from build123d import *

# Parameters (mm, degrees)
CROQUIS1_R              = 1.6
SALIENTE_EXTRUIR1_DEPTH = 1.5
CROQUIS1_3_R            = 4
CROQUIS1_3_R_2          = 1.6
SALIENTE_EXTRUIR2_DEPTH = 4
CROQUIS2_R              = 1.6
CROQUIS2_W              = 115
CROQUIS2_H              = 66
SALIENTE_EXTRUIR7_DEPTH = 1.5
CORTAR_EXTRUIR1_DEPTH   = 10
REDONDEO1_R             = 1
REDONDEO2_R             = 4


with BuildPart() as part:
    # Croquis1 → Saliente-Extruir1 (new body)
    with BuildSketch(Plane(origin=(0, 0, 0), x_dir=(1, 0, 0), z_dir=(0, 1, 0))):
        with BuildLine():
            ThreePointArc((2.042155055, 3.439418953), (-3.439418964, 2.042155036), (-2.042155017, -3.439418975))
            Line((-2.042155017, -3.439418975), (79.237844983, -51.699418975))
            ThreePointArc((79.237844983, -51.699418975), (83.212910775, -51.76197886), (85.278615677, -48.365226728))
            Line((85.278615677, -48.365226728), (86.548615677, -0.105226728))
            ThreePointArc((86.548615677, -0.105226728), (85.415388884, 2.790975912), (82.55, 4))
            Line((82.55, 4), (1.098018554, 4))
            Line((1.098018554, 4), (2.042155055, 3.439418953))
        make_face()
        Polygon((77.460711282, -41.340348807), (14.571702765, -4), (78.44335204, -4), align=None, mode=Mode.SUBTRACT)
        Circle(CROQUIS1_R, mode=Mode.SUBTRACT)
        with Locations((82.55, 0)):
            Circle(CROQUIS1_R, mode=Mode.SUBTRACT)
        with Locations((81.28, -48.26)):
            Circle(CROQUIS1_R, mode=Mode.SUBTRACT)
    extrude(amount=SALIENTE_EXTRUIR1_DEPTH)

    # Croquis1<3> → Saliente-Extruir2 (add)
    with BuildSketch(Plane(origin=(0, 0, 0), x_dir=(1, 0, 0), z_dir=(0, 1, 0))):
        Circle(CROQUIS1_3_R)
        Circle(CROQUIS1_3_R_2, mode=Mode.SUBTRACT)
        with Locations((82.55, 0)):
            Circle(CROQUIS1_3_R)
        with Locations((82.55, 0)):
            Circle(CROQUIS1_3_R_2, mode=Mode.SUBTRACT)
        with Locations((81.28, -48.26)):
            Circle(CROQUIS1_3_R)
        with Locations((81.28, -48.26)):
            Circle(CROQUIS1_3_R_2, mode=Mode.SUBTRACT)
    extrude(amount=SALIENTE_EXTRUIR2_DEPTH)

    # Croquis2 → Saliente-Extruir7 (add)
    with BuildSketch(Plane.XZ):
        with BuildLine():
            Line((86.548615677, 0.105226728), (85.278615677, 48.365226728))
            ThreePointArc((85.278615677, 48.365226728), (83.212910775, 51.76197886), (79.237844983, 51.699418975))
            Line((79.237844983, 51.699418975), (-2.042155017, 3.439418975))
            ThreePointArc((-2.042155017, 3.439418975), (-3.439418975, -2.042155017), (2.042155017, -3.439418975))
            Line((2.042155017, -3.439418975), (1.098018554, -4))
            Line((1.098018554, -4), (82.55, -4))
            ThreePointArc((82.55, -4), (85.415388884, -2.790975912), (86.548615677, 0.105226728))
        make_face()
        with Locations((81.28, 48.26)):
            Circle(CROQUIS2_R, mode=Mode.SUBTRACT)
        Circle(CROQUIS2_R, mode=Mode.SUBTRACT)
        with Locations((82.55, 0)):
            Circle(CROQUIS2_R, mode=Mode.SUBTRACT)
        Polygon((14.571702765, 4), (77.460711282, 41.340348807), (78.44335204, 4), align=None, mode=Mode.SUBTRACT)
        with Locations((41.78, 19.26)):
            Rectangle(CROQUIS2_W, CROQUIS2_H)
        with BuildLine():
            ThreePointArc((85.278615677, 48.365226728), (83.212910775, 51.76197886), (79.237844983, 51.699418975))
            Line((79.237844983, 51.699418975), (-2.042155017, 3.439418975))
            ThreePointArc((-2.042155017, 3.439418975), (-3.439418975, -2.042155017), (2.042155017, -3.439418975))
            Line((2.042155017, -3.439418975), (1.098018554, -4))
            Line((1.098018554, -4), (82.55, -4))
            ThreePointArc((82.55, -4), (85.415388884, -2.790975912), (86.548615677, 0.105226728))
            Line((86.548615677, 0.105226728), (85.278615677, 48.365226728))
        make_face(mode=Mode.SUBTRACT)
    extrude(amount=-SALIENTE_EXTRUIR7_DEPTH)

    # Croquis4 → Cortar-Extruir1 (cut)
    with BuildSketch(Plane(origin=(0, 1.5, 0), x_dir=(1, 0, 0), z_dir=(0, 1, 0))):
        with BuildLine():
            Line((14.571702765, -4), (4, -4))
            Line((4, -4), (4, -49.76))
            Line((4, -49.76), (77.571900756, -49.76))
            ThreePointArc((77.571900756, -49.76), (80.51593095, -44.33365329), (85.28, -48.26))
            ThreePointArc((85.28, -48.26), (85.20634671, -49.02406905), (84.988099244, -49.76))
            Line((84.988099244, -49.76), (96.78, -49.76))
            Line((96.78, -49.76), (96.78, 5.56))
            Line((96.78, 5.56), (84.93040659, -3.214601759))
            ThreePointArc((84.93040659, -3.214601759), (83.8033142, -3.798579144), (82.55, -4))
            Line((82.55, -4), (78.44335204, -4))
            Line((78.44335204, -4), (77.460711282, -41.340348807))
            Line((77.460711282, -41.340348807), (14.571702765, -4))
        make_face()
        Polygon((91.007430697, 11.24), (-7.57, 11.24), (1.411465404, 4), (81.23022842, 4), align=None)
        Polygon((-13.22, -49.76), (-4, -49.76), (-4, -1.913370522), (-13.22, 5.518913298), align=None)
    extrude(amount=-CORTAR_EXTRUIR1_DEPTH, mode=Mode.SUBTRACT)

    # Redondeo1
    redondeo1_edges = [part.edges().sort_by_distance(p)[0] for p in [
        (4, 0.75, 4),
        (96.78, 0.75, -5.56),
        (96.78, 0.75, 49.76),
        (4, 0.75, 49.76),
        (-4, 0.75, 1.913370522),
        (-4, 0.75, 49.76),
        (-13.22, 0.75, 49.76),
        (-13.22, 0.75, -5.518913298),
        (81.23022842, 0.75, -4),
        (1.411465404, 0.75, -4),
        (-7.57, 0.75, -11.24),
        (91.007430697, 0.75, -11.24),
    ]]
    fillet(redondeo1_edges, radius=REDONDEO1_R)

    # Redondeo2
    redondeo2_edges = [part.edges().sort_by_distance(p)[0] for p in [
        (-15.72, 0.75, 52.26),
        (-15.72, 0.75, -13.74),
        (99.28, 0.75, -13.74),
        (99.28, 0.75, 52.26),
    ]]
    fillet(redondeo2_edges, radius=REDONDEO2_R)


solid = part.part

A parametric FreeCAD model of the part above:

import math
import FreeCAD as App
import Part
import Sketcher


def edges_at(feature, points):
    """Names of the edges that pass closest to the given points."""
    edges = feature.Shape.Edges
    near = lambda p: min(range(len(edges)), key=lambda i: edges[i].distToShape(Part.Vertex(*p))[0])
    return sorted({f"Edge{near(p) + 1}" for p in points})


def add_polygon(sketch, points):
    """Adds a closed chain of lines whose ends are joined by coincident constraints."""
    first, n = sketch.GeometryCount, len(points)
    for a, b in zip(points, points[1:] + points[:1]):
        sketch.addGeometry(Part.LineSegment(App.Vector(*a, 0), App.Vector(*b, 0)), False)
    for i in range(n):
        sketch.addConstraint(Sketcher.Constraint("Coincident", first + i, 2, first + (i + 1) % n, 1))

doc = App.newDocument("Part")
body = doc.addObject("PartDesign::Body", "Body")

# Sketch on XZ plane
sketch1 = body.newObject("Sketcher::SketchObject", "Sketch")
sketch1.AttachmentSupport = (doc.getObject("XZ_Plane"), [""])
sketch1.MapMode = "FlatFace"
sketch1.addGeometry(Part.ArcOfCircle(Part.Circle(App.Vector(0, 0, 0), App.Vector(0, 0, 1), 4), math.radians(121), math.radians(301)), False)  # 0
sketch1.addGeometry(Part.LineSegment(App.Vector(-2, 3.4, 0), App.Vector(79.2, 51.7, 0)), False)  # 1
sketch1.addGeometry(Part.ArcOfCircle(Part.Circle(App.Vector(81.3, 48.3, 0), App.Vector(0, 0, 1), 4), math.radians(2), math.radians(121)), False)  # 2
sketch1.addGeometry(Part.LineSegment(App.Vector(85.3, 48.4, 0), App.Vector(86.5, 0.1, 0)), False)  # 3
sketch1.addGeometry(Part.ArcOfCircle(Part.Circle(App.Vector(82.5, 0, 0), App.Vector(0, 0, 1), 4), math.radians(-90), math.radians(2)), False)  # 4
sketch1.addGeometry(Part.LineSegment(App.Vector(82.5, -4, 0), App.Vector(1.1, -4, 0)), False)  # 5
sketch1.addGeometry(Part.LineSegment(App.Vector(1.1, -4, 0), App.Vector(2, -3.4, 0)), False)  # 6
sketch1.addGeometry(Part.Circle(App.Vector(81.3, 48.3, 0), App.Vector(0, 0, 1), 1.6), False)  # 7
sketch1.addGeometry(Part.Circle(App.Vector(0, 0, 0), App.Vector(0, 0, 1), 1.6), False)  # 8
add_polygon(sketch1, [(78.4, 4), (77.5, 41.3), (14.6, 4)])  # lines 9-11
sketch1.addGeometry(Part.Circle(App.Vector(82.5, 0, 0), App.Vector(0, 0, 1), 1.6), False)  # 12
sketch1.addConstraint([
    Sketcher.Constraint("Tangent", 0, 1, 1, 1),
    Sketcher.Constraint("Tangent", 1, 2, 2, 2),
    Sketcher.Constraint("Tangent", 2, 1, 3, 1),
    Sketcher.Constraint("Tangent", 3, 2, 4, 2),
    Sketcher.Constraint("Tangent", 4, 1, 5, 1),
    Sketcher.Constraint("Coincident", 5, 2, 6, 1),
    Sketcher.Constraint("Tangent", 6, 2, 0, 2),
    Sketcher.Constraint("Horizontal", 5),
    Sketcher.Constraint("Horizontal", 11),
    Sketcher.Constraint("Coincident", 0, 3, -1, 1),
    Sketcher.Constraint("Coincident", 8, 3, -1, 1),
    Sketcher.Constraint("Coincident", 7, 3, 2, 3),
    Sketcher.Constraint("Coincident", 12, 3, 4, 3),
    Sketcher.Constraint("Equal", 0, 2),
    Sketcher.Constraint("Equal", 2, 4),
    Sketcher.Constraint("Equal", 7, 8),
    Sketcher.Constraint("Equal", 8, 12),
    Sketcher.Constraint("PointOnObject", 4, 3, -1),
    Sketcher.Constraint("Parallel", 1, 6),
    Sketcher.Constraint("Parallel", 3, 9),
    Sketcher.Constraint("Parallel", 6, 10),
    Sketcher.Constraint("Radius", 0, 4.0),
    Sketcher.Constraint("Diameter", 7, 3.2),
    Sketcher.Constraint("DistanceY", -1, 1, 10, 2, 4.0),
    Sketcher.Constraint("DistanceX", -1, 1, 2, 3, 81.28),
    Sketcher.Constraint("DistanceY", -1, 1, 2, 3, 48.26),
    Sketcher.Constraint("DistanceX", -1, 1, 4, 3, 82.55),
    Sketcher.Constraint("DistanceX", 11, 1, 11, 2, 63.871649),
    Sketcher.Constraint("DistanceX", -1, 1, 9, 2, 77.460711),
])
pad1 = body.newObject("PartDesign::Pad", "Pad")
pad1.Profile = sketch1
pad1.Length = 1.5
pad1.Reversed = True

# Sketch on XZ plane
sketch2 = body.newObject("Sketcher::SketchObject", "Sketch001")
sketch2.AttachmentSupport = (doc.getObject("XZ_Plane"), [""])
sketch2.MapMode = "FlatFace"
sketch2.addGeometry([
    Part.Circle(App.Vector(0, 0, 0), App.Vector(0, 0, 1), 4),  # 0
    Part.Circle(App.Vector(0, 0, 0), App.Vector(0, 0, 1), 1.6),  # 1
    Part.Circle(App.Vector(82.5, 0, 0), App.Vector(0, 0, 1), 4),  # 2
    Part.Circle(App.Vector(82.5, 0, 0), App.Vector(0, 0, 1), 1.6),  # 3
    Part.Circle(App.Vector(81.3, 48.3, 0), App.Vector(0, 0, 1), 4),  # 4
    Part.Circle(App.Vector(81.3, 48.3, 0), App.Vector(0, 0, 1), 1.6),  # 5
], False)
sketch2.addConstraint([
    Sketcher.Constraint("Coincident", 0, 3, -1, 1),
    Sketcher.Constraint("Coincident", 1, 3, -1, 1),
    Sketcher.Constraint("Coincident", 3, 3, 2, 3),
    Sketcher.Constraint("Coincident", 5, 3, 4, 3),
    Sketcher.Constraint("Equal", 0, 2),
    Sketcher.Constraint("Equal", 1, 3),
    Sketcher.Constraint("Equal", 2, 4),
    Sketcher.Constraint("Equal", 3, 5),
    Sketcher.Constraint("PointOnObject", 2, 3, -1),
    Sketcher.Constraint("Diameter", 0, 8.0),
    Sketcher.Constraint("Diameter", 1, 3.2),
    Sketcher.Constraint("DistanceX", -1, 1, 2, 3, 82.55),
    Sketcher.Constraint("DistanceX", -1, 1, 4, 3, 81.28),
    Sketcher.Constraint("DistanceY", -1, 1, 4, 3, 48.26),
])
pad2 = body.newObject("PartDesign::Pad", "Pad001")
pad2.Profile = sketch2
pad2.Length = 4
pad2.Reversed = True

# Sketch on XZ plane
sketch3 = body.newObject("Sketcher::SketchObject", "Sketch002")
sketch3.AttachmentSupport = (doc.getObject("XZ_Plane"), [""])
sketch3.MapMode = "FlatFace"
add_polygon(sketch3, [(-15.7, 52.3), (-15.7, -13.7), (99.3, -13.7), (99.3, 52.3), (81.3, 52.3)])  # lines 0-4
sketch3.addGeometry(Part.ArcOfCircle(Part.Circle(App.Vector(81.3, 48.3, 0), App.Vector(0, 0, 1), 4), math.radians(90), math.radians(121)), False)  # 5
sketch3.addGeometry(Part.ArcOfCircle(Part.Circle(App.Vector(81.3, 48.3, 0), App.Vector(0, 0, 1), 4), math.radians(2), math.radians(90)), False)  # 6
sketch3.addGeometry(Part.LineSegment(App.Vector(85.3, 48.4, 0), App.Vector(86.5, 0.1, 0)), False)  # 7
sketch3.addGeometry(Part.ArcOfCircle(Part.Circle(App.Vector(82.5, 0, 0), App.Vector(0, 0, 1), 4), math.radians(-90), math.radians(2)), False)  # 8
sketch3.addGeometry(Part.LineSegment(App.Vector(82.5, -4, 0), App.Vector(1.1, -4, 0)), False)  # 9
sketch3.addGeometry(Part.LineSegment(App.Vector(1.1, -4, 0), App.Vector(2, -3.4, 0)), False)  # 10
sketch3.addGeometry(Part.ArcOfCircle(Part.Circle(App.Vector(0, 0, 0), App.Vector(0, 0, 1), 4), math.radians(121), math.radians(301)), False)  # 11
sketch3.addGeometry(Part.LineSegment(App.Vector(-2, 3.4, 0), App.Vector(79.2, 51.7, 0)), False)  # 12
sketch3.addConstraint([
    Sketcher.Constraint("Tangent", 5, 1, 6, 2),
    Sketcher.Constraint("Tangent", 6, 1, 7, 1),
    Sketcher.Constraint("Tangent", 7, 2, 8, 2),
    Sketcher.Constraint("Tangent", 8, 1, 9, 1),
    Sketcher.Constraint("Coincident", 9, 2, 10, 1),
    Sketcher.Constraint("Tangent", 10, 2, 11, 2),
    Sketcher.Constraint("Tangent", 11, 1, 12, 1),
    Sketcher.Constraint("Tangent", 12, 2, 5, 2),
    Sketcher.Constraint("Vertical", 0),
    Sketcher.Constraint("Horizontal", 1),
    Sketcher.Constraint("Vertical", 2),
    Sketcher.Constraint("Horizontal", 3),
    Sketcher.Constraint("Horizontal", 4),
    Sketcher.Constraint("Horizontal", 9),
    Sketcher.Constraint("Coincident", 11, 3, -1, 1),
    Sketcher.Constraint("Coincident", 5, 1, 3, 2),
    Sketcher.Constraint("Equal", 5, 6),
    Sketcher.Constraint("Equal", 6, 8),
    Sketcher.Constraint("Equal", 8, 11),
    Sketcher.Constraint("PointOnObject", 8, 3, -1),
    Sketcher.Constraint("Parallel", 10, 12),
    Sketcher.Constraint("Vertical", 6, 3, 3, 2),
    Sketcher.Constraint("Radius", 5, 4.0),
    Sketcher.Constraint("DistanceX", 1, 1, 1, 2, 115.0),
    Sketcher.Constraint("DistanceX", 3, 2, 3, 1, 18.0),
    Sketcher.Constraint("DistanceY", 0, 2, 0, 1, 66.0),
    Sketcher.Constraint("DistanceX", -1, 1, 5, 3, 81.28),
    Sketcher.Constraint("DistanceY", -1, 1, 5, 3, 48.26),
    Sketcher.Constraint("DistanceX", -1, 1, 8, 3, 82.55),
])
pad3 = body.newObject("PartDesign::Pad", "Pad002")
pad3.Profile = sketch3
pad3.Length = 1.5
pad3.Reversed = True

# Sketch on XZ plane
sketch4 = body.newObject("Sketcher::SketchObject", "Sketch003")
sketch4.AttachmentSupport = (doc.getObject("XZ_Plane"), [""])
sketch4.MapMode = "FlatFace"
sketch4.AttachmentOffset = App.Placement(App.Vector(0, 0, -1.5), App.Rotation())
sketch4.addGeometry(Part.LineSegment(App.Vector(14.6, 4, 0), App.Vector(4, 4, 0)), False)  # 0
sketch4.addGeometry(Part.LineSegment(App.Vector(4, 4, 0), App.Vector(4, 49.8, 0)), False)  # 1
sketch4.addGeometry(Part.LineSegment(App.Vector(4, 49.8, 0), App.Vector(77.6, 49.8, 0)), False)  # 2
sketch4.addGeometry(Part.ArcOfCircle(Part.Circle(App.Vector(81.3, 48.3, 0), App.Vector(0, 0, 1), 4), math.radians(158), math.radians(360)), False)  # 3
sketch4.addGeometry(Part.ArcOfCircle(Part.Circle(App.Vector(81.3, 48.3, 0), App.Vector(0, 0, 1), 4), math.radians(0), math.radians(22)), False)  # 4
sketch4.addGeometry(Part.LineSegment(App.Vector(85, 49.8, 0), App.Vector(96.8, 49.8, 0)), False)  # 5
sketch4.addGeometry(Part.LineSegment(App.Vector(96.8, 49.8, 0), App.Vector(96.8, -5.6, 0)), False)  # 6
sketch4.addGeometry(Part.LineSegment(App.Vector(96.8, -5.6, 0), App.Vector(84.9, 3.2, 0)), False)  # 7
sketch4.addGeometry(Part.ArcOfCircle(Part.Circle(App.Vector(82.5, 0, 0), App.Vector(0, 0, 1), 4), math.radians(53), math.radians(90)), False)  # 8
sketch4.addGeometry(Part.LineSegment(App.Vector(82.5, 4, 0), App.Vector(78.4, 4, 0)), False)  # 9
sketch4.addGeometry(Part.LineSegment(App.Vector(78.4, 4, 0), App.Vector(77.5, 41.3, 0)), False)  # 10
sketch4.addGeometry(Part.LineSegment(App.Vector(77.5, 41.3, 0), App.Vector(14.6, 4, 0)), False)  # 11
add_polygon(sketch4, [(91, -11.2), (-7.6, -11.2), (1.4, -4), (81.2, -4)])  # lines 12-15
add_polygon(sketch4, [(-13.2, 49.8), (-4, 49.8), (-4, 1.9), (-13.2, -5.5)])  # lines 16-19
sketch4.addConstraint([
    Sketcher.Constraint("Coincident", 0, 2, 1, 1),
    Sketcher.Constraint("Coincident", 1, 2, 2, 1),
    Sketcher.Constraint("Coincident", 2, 2, 3, 1),
    Sketcher.Constraint("Tangent", 3, 2, 4, 1),
    Sketcher.Constraint("Coincident", 4, 2, 5, 1),
    Sketcher.Constraint("Coincident", 5, 2, 6, 1),
    Sketcher.Constraint("Coincident", 6, 2, 7, 1),
    Sketcher.Constraint("Tangent", 7, 2, 8, 1),
    Sketcher.Constraint("Tangent", 8, 2, 9, 1),
    Sketcher.Constraint("Coincident", 9, 2, 10, 1),
    Sketcher.Constraint("Coincident", 10, 2, 11, 1),
    Sketcher.Constraint("Coincident", 11, 2, 0, 1),
    Sketcher.Constraint("Horizontal", 0),
    Sketcher.Constraint("Vertical", 1),
    Sketcher.Constraint("Horizontal", 2),
    Sketcher.Constraint("Horizontal", 5),
    Sketcher.Constraint("Vertical", 6),
    Sketcher.Constraint("Horizontal", 9),
    Sketcher.Constraint("Horizontal", 12),
    Sketcher.Constraint("Horizontal", 14),
    Sketcher.Constraint("Horizontal", 16),
    Sketcher.Constraint("Vertical", 17),
    Sketcher.Constraint("Vertical", 19),
    Sketcher.Constraint("Equal", 3, 4),
    Sketcher.Constraint("Equal", 4, 8),
    Sketcher.Constraint("Symmetric", 1, 2, 16, 2, -2),
    Sketcher.Constraint("PointOnObject", 8, 3, -1),
    Sketcher.Constraint("Parallel", 7, 15),
    Sketcher.Constraint("Parallel", 13, 18),
    Sketcher.Constraint("Horizontal", 4, 3, 3, 2),
    Sketcher.Constraint("Horizontal", 2, 2, 4, 2),
    Sketcher.Constraint("Horizontal", 0, 2, 8, 2),
    Sketcher.Constraint("Radius", 3, 4.0),
    Sketcher.Constraint("DistanceX", -1, 1, 0, 2, 4.0),
    Sketcher.Constraint("DistanceY", 13, 2, -1, 1, 4.0),
    Sketcher.Constraint("DistanceY", 12, 2, 1, 2, 61.0),
    Sketcher.Constraint("DistanceX", 16, 1, 16, 2, 9.22),
    Sketcher.Constraint("DistanceY", 1, 1, 1, 2, 45.76),
    Sketcher.Constraint("DistanceY", 6, 2, 6, 1, 55.32),
    Sketcher.Constraint("DistanceY", 4, 3, 1, 2, 1.5),
    Sketcher.Constraint("DistanceX", 3, 2, 5, 2, 11.5),
    Sketcher.Constraint("DistanceX", -1, 1, 3, 3, 81.28),
    Sketcher.Constraint("DistanceX", -1, 1, 8, 3, 82.55),
    Sketcher.Constraint("DistanceX", 12, 2, -1, 1, 7.57),
    Sketcher.Constraint("DistanceX", 12, 2, 12, 1, 98.577431),
    Sketcher.Constraint("DistanceY", 17, 2, 17, 1, 47.846629),
    Sketcher.Constraint("DistanceX", 0, 2, 0, 1, 10.571703),
    Sketcher.Constraint("DistanceX", 9, 2, 9, 1, 4.106648),
    Sketcher.Constraint("DistanceX", 14, 1, 14, 2, 79.818763),
    Sketcher.Constraint("DistanceX", -1, 1, 10, 2, 77.460711),
    Sketcher.Constraint("DistanceY", -1, 1, 10, 2, 41.340349),
])
pocket1 = body.newObject("PartDesign::Pocket", "Pocket")
pocket1.Profile = sketch4
pocket1.Length = 10
pocket1.Reversed = True
doc.recompute()

fillet = body.newObject("PartDesign::Fillet", "Fillet")
fillet.Base = (pocket1, edges_at(pocket1, [
    (4, 0.75, 4),
    (96.78, 0.75, -5.56),
    (96.78, 0.75, 49.76),
    (4, 0.75, 49.76),
    (-4, 0.75, 1.913),
    (-4, 0.75, 49.76),
    (-13.22, 0.75, 49.76),
    (-13.22, 0.75, -5.519),
    (81.23, 0.75, -4),
    (1.411, 0.75, -4),
    (-7.57, 0.75, -11.24),
    (91.007, 0.75, -11.24),
]))
fillet.Radius = 1
doc.recompute()

fillet2 = body.newObject("PartDesign::Fillet", "Fillet001")
fillet2.Base = (fillet, edges_at(fillet, [
    (-15.72, 0.75, 52.26),
    (-15.72, 0.75, -13.74),
    (99.28, 0.75, -13.74),
    (99.28, 0.75, 52.26),
]))
fillet2.Radius = 4

doc.recompute()
